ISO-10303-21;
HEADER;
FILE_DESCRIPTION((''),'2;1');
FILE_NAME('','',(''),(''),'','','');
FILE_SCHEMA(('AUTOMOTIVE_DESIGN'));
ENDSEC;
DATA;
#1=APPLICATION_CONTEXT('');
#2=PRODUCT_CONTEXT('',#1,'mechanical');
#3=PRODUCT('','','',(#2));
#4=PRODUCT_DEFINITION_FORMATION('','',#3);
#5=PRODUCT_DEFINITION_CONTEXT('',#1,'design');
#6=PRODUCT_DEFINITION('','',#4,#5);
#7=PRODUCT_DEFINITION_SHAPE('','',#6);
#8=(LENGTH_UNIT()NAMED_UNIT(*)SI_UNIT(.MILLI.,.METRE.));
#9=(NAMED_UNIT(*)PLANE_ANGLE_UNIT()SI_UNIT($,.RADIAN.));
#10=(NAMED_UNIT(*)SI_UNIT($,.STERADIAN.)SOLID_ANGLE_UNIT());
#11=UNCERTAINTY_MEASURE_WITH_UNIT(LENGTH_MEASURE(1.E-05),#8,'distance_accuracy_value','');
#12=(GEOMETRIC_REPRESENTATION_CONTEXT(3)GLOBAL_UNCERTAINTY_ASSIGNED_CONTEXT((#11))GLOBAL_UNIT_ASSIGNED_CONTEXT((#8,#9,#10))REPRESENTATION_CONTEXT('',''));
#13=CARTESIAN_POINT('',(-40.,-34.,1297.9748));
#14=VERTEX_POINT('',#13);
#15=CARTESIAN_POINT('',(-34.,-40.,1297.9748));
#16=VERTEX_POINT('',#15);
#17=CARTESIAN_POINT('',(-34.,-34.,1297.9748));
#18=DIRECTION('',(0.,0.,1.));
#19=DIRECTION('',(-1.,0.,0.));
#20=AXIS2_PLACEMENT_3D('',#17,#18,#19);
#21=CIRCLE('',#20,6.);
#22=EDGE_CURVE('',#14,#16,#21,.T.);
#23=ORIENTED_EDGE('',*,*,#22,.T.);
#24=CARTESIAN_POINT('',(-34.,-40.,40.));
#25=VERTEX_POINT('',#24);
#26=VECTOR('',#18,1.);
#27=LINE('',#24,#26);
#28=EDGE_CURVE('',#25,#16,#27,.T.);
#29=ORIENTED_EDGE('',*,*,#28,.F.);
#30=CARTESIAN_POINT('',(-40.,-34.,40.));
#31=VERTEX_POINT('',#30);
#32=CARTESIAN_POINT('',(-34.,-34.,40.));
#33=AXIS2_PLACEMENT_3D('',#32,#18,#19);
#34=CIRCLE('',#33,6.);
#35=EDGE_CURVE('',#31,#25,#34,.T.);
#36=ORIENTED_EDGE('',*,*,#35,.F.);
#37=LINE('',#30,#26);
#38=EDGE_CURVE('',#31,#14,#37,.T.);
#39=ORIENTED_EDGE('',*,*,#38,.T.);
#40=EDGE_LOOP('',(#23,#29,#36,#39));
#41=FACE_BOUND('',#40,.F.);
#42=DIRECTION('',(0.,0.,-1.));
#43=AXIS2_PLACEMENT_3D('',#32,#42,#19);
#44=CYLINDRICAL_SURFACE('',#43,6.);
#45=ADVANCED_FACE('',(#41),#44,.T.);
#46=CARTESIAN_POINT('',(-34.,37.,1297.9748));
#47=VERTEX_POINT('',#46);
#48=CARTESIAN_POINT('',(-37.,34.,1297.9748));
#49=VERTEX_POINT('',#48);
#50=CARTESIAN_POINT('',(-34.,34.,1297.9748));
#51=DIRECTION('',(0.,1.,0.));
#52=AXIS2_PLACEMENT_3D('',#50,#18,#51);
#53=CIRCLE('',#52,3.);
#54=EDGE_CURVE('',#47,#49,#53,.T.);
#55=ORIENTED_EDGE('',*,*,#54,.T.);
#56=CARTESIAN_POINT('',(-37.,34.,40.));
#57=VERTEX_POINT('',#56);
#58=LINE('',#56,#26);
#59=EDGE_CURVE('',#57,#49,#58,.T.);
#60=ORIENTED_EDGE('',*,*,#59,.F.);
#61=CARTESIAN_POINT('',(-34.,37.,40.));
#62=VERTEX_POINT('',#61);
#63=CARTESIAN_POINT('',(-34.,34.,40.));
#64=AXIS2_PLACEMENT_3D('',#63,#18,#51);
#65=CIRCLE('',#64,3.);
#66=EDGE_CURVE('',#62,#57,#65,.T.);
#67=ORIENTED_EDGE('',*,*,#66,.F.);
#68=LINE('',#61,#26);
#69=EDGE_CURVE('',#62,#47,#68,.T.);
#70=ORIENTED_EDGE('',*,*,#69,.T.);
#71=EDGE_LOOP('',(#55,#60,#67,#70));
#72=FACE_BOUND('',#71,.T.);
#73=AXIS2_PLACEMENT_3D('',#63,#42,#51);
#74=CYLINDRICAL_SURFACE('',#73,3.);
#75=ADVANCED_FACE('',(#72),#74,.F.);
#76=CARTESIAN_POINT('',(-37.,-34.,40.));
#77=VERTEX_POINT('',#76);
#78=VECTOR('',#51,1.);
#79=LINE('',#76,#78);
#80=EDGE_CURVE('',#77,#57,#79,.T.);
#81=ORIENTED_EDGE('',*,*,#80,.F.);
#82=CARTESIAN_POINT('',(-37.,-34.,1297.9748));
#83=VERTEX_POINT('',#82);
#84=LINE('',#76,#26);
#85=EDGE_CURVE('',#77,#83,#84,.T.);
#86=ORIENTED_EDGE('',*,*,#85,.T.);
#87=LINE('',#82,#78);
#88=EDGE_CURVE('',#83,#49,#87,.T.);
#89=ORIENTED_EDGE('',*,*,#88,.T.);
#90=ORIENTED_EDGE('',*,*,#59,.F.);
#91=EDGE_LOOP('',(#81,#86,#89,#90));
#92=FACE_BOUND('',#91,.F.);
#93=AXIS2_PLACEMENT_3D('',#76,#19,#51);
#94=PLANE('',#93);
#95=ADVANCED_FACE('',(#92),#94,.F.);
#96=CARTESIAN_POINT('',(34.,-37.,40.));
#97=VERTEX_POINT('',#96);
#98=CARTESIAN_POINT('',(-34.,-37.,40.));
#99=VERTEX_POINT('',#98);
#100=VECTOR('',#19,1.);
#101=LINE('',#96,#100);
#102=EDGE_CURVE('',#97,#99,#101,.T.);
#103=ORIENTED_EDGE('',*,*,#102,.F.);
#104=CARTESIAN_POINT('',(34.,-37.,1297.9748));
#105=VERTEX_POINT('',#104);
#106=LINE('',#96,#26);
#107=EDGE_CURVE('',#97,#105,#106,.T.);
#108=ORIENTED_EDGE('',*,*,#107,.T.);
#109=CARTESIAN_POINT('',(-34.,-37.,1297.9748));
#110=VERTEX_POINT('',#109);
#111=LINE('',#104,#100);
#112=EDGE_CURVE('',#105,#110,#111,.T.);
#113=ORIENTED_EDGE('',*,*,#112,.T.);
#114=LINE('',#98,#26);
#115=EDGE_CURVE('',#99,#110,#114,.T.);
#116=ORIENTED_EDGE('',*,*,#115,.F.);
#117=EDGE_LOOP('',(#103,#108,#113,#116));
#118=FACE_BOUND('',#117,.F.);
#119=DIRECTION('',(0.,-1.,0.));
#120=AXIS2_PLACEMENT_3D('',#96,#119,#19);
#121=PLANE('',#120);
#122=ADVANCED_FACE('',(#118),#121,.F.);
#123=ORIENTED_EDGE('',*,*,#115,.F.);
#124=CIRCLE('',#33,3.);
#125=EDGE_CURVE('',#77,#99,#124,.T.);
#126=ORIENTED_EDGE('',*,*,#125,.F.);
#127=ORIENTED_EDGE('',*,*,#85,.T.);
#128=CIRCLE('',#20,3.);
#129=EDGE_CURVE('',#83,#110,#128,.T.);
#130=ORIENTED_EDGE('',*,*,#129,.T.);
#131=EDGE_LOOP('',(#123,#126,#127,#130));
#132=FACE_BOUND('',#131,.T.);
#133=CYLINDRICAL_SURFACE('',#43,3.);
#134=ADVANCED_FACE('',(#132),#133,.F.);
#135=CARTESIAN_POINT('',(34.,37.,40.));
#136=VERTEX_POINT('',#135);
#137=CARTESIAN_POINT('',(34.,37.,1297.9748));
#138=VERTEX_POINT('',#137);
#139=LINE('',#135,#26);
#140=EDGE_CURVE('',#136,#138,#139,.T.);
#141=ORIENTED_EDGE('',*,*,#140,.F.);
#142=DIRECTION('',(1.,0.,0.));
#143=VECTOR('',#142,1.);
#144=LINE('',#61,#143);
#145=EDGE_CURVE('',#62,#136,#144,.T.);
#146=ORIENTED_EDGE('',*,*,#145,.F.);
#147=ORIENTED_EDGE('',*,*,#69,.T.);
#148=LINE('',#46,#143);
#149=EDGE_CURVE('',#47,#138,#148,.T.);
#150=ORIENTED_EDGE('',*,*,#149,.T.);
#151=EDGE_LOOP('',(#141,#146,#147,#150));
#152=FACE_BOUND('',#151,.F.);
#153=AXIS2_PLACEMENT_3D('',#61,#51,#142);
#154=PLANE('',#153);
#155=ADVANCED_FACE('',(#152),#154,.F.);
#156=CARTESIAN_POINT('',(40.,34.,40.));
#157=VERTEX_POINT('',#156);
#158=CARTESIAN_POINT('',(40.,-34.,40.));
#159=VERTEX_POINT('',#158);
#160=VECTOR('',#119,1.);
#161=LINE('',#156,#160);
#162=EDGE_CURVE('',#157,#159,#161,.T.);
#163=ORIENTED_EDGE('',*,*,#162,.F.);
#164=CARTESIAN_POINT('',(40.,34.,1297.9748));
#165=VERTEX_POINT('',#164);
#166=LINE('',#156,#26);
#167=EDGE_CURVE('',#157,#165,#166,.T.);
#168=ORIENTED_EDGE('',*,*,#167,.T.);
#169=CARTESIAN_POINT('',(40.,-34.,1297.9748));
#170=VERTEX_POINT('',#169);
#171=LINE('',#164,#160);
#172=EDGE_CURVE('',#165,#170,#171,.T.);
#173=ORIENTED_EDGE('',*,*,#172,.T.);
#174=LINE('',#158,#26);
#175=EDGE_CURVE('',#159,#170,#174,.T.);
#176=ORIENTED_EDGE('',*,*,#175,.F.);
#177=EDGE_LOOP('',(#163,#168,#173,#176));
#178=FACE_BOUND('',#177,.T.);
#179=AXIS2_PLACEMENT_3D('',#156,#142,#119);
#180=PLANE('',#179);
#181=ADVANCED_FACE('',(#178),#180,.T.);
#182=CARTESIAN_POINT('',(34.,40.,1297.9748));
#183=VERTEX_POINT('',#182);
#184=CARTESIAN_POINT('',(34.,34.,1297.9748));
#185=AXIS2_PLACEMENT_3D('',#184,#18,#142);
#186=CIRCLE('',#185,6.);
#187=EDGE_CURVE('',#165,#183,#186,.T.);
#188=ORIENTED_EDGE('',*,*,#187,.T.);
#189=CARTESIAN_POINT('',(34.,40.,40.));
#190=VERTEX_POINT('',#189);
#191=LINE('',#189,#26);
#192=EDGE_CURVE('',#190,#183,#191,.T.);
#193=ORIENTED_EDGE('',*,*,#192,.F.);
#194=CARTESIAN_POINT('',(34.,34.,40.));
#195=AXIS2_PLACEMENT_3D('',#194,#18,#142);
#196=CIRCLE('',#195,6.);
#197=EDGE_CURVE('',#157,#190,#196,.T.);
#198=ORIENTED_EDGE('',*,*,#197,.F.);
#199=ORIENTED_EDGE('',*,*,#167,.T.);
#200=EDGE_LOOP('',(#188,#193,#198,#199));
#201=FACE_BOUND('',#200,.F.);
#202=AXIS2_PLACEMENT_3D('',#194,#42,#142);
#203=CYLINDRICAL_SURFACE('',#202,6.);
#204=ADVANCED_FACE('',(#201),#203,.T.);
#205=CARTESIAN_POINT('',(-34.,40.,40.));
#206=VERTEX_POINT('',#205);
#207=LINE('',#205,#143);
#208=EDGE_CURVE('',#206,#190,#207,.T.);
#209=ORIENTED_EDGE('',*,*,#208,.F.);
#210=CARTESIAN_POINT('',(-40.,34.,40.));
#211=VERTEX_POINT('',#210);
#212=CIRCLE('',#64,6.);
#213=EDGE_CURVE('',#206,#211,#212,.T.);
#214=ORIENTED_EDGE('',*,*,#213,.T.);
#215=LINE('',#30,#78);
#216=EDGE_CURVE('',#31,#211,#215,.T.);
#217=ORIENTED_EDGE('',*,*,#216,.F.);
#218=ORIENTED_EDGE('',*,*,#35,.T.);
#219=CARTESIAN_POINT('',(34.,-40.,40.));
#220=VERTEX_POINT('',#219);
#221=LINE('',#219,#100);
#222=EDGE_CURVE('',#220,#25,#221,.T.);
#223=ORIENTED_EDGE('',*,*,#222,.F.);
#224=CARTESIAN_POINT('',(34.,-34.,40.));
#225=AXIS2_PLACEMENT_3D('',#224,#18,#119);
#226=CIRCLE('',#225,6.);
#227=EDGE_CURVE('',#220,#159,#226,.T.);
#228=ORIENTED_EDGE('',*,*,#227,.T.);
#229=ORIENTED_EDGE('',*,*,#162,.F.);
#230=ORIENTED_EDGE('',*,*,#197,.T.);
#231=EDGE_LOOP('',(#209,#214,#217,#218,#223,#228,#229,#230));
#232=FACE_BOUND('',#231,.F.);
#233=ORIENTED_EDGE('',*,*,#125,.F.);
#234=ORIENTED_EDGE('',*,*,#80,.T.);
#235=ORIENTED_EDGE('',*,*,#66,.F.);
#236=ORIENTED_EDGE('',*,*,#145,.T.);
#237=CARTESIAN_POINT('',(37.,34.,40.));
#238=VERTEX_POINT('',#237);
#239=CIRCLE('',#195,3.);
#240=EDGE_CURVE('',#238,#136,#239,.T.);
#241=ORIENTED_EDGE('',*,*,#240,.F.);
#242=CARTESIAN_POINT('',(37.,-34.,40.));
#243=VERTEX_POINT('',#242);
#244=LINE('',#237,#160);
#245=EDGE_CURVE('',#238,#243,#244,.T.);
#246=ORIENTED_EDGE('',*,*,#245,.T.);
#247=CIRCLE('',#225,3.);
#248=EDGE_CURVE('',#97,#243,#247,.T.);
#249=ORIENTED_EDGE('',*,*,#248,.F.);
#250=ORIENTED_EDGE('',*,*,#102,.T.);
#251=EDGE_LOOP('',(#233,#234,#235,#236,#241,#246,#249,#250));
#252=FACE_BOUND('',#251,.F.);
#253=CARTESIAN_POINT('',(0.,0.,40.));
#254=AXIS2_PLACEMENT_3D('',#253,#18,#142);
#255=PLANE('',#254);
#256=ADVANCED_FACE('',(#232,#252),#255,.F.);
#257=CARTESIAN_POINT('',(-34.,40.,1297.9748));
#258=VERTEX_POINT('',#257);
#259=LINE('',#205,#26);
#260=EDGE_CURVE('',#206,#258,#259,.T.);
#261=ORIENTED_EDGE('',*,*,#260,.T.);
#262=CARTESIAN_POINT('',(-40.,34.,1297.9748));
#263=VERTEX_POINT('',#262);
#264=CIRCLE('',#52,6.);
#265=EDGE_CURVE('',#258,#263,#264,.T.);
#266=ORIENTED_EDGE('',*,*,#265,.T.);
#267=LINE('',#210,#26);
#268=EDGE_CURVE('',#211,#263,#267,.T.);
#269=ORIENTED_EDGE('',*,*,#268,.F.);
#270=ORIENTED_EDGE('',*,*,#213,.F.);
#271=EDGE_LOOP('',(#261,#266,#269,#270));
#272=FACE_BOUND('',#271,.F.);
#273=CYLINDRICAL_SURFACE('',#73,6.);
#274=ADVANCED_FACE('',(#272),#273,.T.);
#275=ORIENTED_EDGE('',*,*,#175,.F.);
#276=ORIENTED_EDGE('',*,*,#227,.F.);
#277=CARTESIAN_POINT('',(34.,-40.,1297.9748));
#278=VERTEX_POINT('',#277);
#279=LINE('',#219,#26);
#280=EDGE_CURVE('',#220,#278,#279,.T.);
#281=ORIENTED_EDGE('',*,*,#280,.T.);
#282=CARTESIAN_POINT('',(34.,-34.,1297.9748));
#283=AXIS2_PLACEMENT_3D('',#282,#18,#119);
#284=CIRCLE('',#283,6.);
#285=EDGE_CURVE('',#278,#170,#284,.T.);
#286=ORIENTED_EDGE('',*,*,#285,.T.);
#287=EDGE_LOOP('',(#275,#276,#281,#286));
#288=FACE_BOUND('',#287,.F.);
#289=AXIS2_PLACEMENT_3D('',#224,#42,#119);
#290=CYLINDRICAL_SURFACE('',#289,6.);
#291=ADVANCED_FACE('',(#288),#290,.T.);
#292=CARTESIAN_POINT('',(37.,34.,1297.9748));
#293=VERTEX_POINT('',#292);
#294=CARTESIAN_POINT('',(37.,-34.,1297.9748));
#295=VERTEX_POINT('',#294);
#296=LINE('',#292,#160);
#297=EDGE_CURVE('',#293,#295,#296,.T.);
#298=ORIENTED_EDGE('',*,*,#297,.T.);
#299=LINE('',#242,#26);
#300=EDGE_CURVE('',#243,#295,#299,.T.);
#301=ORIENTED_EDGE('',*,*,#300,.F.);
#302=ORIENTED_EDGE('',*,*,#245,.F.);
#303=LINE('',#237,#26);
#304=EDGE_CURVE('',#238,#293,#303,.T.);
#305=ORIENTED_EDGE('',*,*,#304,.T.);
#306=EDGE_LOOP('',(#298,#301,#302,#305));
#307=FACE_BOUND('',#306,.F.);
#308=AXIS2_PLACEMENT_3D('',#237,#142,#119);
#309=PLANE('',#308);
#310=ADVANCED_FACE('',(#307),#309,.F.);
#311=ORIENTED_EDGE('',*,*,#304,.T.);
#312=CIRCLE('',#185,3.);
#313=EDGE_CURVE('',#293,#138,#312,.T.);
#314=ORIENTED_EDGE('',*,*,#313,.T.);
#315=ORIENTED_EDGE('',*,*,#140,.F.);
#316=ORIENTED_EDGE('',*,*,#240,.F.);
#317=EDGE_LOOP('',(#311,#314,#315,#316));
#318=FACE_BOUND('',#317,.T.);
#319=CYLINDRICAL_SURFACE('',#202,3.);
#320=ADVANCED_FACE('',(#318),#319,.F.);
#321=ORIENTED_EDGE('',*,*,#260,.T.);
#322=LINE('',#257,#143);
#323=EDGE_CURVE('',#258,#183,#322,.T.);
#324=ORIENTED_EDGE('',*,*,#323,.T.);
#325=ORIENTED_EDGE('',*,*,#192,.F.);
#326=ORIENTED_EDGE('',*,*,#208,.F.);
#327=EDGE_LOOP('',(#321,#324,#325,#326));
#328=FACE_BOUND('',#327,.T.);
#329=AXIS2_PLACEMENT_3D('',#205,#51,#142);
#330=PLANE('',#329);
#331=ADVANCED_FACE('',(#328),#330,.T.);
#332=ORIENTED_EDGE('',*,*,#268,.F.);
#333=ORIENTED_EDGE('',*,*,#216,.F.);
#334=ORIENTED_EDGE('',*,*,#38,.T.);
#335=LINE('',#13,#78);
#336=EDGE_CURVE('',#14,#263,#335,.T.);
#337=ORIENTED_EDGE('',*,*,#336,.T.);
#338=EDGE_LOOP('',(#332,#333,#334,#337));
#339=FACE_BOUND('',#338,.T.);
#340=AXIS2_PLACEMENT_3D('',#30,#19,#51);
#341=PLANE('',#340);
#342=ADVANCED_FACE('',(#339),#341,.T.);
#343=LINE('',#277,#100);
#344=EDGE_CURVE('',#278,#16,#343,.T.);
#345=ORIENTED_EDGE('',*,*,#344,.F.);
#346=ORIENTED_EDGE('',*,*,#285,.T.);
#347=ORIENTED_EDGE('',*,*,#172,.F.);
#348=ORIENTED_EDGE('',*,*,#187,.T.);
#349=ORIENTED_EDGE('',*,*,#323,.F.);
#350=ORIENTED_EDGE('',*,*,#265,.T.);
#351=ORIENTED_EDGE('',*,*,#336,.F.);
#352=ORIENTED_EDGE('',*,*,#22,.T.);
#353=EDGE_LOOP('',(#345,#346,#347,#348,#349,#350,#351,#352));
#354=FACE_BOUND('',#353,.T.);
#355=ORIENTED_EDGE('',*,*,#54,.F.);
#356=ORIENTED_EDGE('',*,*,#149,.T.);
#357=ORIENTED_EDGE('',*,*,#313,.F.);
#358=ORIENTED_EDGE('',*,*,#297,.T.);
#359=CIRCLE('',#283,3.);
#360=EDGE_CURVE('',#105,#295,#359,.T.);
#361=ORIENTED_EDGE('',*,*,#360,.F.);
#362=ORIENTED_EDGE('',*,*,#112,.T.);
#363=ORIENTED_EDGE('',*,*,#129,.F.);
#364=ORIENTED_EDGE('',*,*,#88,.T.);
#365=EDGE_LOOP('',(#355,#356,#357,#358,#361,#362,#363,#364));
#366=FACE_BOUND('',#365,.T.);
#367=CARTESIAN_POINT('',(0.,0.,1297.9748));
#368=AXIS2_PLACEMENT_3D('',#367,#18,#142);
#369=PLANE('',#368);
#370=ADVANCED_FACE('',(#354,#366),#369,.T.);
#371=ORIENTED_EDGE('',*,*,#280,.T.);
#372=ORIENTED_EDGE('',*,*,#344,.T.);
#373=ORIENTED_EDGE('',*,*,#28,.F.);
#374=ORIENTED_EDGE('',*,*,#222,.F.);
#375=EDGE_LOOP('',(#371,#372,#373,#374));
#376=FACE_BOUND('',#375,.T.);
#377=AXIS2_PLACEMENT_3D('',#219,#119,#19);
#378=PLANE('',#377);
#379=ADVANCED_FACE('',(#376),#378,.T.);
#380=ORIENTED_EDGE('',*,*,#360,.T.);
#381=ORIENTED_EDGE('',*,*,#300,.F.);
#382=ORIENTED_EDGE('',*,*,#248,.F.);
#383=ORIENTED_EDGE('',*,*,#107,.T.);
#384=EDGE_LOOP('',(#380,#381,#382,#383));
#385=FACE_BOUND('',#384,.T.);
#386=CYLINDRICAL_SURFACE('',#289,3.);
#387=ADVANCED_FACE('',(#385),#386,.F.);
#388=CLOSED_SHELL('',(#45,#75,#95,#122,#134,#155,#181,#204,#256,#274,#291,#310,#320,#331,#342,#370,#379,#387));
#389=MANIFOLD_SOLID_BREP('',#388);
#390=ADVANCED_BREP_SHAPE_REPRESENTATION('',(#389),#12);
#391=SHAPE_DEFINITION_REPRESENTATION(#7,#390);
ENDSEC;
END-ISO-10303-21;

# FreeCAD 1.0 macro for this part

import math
import FreeCAD as App
import Part
import Sketcher
from FreeCAD import Vector
Q = App.Units.Quantity

doc = App.newDocument("Part")
body = doc.addObject("PartDesign::Body", "Body")

# Sketch on XY plane
sketch1 = body.newObject("Sketcher::SketchObject", "Sketch")
sketch1.AttachmentSupport = (doc.getObject("XY_Plane"), [""])
sketch1.MapMode = "FlatFace"
sketch1.AttachmentOffset = App.Placement(Vector(0, 0, 40), App.Rotation())
sketch1.addGeometry([
    Part.LineSegment(Vector(-40, 34, 0), Vector(-40, -34, 0)),  # 0
    Part.ArcOfCircle(Part.Circle(Vector(-34, -34, 0), Vector(0, 0, 1), 6), math.radians(180), math.radians(270)),  # 1
    Part.LineSegment(Vector(-34, -40, 0), Vector(34, -40, 0)),  # 2
    Part.ArcOfCircle(Part.Circle(Vector(34, -34, 0), Vector(0, 0, 1), 6), math.radians(-90), math.radians(0)),  # 3
    Part.LineSegment(Vector(40, -34, 0), Vector(40, 34, 0)),  # 4
    Part.ArcOfCircle(Part.Circle(Vector(34, 34, 0), Vector(0, 0, 1), 6), math.radians(0), math.radians(90)),  # 5
    Part.LineSegment(Vector(34, 40, 0), Vector(-34, 40, 0)),  # 6
    Part.ArcOfCircle(Part.Circle(Vector(-34, 34, 0), Vector(0, 0, 1), 6), math.radians(90), math.radians(180)),  # 7
    Part.ArcOfCircle(Part.Circle(Vector(-34, 34, 0), Vector(0, 0, 1), 3), math.radians(90), math.radians(180)),  # 8
    Part.LineSegment(Vector(-34, 37, 0), Vector(34, 37, 0)),  # 9
    Part.ArcOfCircle(Part.Circle(Vector(34, 34, 0), Vector(0, 0, 1), 3), math.radians(0), math.radians(90)),  # 10
    Part.LineSegment(Vector(37, 34, 0), Vector(37, -34, 0)),  # 11
    Part.ArcOfCircle(Part.Circle(Vector(34, -34, 0), Vector(0, 0, 1), 3), math.radians(-90), math.radians(0)),  # 12
    Part.LineSegment(Vector(34, -37, 0), Vector(-34, -37, 0)),  # 13
    Part.ArcOfCircle(Part.Circle(Vector(-34, -34, 0), Vector(0, 0, 1), 3), math.radians(180), math.radians(270)),  # 14
    Part.LineSegment(Vector(-37, -34, 0), Vector(-37, 34, 0)),  # 15
], False)
sketch1.addConstraint([
    Sketcher.Constraint("Tangent", 0, 2, 1, 1),
    Sketcher.Constraint("Tangent", 1, 2, 2, 1),
    Sketcher.Constraint("Tangent", 2, 2, 3, 1),
    Sketcher.Constraint("Tangent", 3, 2, 4, 1),
    Sketcher.Constraint("Tangent", 4, 2, 5, 1),
    Sketcher.Constraint("Tangent", 5, 2, 6, 1),
    Sketcher.Constraint("Tangent", 6, 2, 7, 1),
    Sketcher.Constraint("Tangent", 7, 2, 0, 1),
    Sketcher.Constraint("Tangent", 8, 1, 9, 1),
    Sketcher.Constraint("Tangent", 9, 2, 10, 2),
    Sketcher.Constraint("Tangent", 10, 1, 11, 1),
    Sketcher.Constraint("Tangent", 11, 2, 12, 2),
    Sketcher.Constraint("Tangent", 12, 1, 13, 1),
    Sketcher.Constraint("Tangent", 13, 2, 14, 2),
    Sketcher.Constraint("Tangent", 14, 1, 15, 1),
    Sketcher.Constraint("Tangent", 15, 2, 8, 2),
    Sketcher.Constraint("Vertical", 0),
    Sketcher.Constraint("Horizontal", 2),
    Sketcher.Constraint("Vertical", 4),
    Sketcher.Constraint("Horizontal", 6),
    Sketcher.Constraint("Horizontal", 9),
    Sketcher.Constraint("Vertical", 11),
    Sketcher.Constraint("Horizontal", 13),
    Sketcher.Constraint("Vertical", 15),
    Sketcher.Constraint("Coincident", 8, 3, 7, 3),
    Sketcher.Constraint("Coincident", 10, 3, 5, 3),
    Sketcher.Constraint("Coincident", 12, 3, 3, 3),
    Sketcher.Constraint("Equal", 1, 3),
    Sketcher.Constraint("Equal", 3, 5),
    Sketcher.Constraint("Equal", 5, 7),
    Sketcher.Constraint("Equal", 12, 14),
    Sketcher.Constraint("Symmetric", 1, 3, 5, 3, -1, 1),
    Sketcher.Constraint("Equal", 13, 0),
    Sketcher.Constraint("Radius", 1, Q("6 mm")),
    Sketcher.Constraint("Radius", 8, Q("3 mm")),
    Sketcher.Constraint("DistanceX", 0, 2, -1, 1, Q("40 mm")),
])
pad1 = body.newObject("PartDesign::Pad", "Pad")
pad1.Profile = sketch1
pad1.Length = 1257.9748

doc.recompute()
